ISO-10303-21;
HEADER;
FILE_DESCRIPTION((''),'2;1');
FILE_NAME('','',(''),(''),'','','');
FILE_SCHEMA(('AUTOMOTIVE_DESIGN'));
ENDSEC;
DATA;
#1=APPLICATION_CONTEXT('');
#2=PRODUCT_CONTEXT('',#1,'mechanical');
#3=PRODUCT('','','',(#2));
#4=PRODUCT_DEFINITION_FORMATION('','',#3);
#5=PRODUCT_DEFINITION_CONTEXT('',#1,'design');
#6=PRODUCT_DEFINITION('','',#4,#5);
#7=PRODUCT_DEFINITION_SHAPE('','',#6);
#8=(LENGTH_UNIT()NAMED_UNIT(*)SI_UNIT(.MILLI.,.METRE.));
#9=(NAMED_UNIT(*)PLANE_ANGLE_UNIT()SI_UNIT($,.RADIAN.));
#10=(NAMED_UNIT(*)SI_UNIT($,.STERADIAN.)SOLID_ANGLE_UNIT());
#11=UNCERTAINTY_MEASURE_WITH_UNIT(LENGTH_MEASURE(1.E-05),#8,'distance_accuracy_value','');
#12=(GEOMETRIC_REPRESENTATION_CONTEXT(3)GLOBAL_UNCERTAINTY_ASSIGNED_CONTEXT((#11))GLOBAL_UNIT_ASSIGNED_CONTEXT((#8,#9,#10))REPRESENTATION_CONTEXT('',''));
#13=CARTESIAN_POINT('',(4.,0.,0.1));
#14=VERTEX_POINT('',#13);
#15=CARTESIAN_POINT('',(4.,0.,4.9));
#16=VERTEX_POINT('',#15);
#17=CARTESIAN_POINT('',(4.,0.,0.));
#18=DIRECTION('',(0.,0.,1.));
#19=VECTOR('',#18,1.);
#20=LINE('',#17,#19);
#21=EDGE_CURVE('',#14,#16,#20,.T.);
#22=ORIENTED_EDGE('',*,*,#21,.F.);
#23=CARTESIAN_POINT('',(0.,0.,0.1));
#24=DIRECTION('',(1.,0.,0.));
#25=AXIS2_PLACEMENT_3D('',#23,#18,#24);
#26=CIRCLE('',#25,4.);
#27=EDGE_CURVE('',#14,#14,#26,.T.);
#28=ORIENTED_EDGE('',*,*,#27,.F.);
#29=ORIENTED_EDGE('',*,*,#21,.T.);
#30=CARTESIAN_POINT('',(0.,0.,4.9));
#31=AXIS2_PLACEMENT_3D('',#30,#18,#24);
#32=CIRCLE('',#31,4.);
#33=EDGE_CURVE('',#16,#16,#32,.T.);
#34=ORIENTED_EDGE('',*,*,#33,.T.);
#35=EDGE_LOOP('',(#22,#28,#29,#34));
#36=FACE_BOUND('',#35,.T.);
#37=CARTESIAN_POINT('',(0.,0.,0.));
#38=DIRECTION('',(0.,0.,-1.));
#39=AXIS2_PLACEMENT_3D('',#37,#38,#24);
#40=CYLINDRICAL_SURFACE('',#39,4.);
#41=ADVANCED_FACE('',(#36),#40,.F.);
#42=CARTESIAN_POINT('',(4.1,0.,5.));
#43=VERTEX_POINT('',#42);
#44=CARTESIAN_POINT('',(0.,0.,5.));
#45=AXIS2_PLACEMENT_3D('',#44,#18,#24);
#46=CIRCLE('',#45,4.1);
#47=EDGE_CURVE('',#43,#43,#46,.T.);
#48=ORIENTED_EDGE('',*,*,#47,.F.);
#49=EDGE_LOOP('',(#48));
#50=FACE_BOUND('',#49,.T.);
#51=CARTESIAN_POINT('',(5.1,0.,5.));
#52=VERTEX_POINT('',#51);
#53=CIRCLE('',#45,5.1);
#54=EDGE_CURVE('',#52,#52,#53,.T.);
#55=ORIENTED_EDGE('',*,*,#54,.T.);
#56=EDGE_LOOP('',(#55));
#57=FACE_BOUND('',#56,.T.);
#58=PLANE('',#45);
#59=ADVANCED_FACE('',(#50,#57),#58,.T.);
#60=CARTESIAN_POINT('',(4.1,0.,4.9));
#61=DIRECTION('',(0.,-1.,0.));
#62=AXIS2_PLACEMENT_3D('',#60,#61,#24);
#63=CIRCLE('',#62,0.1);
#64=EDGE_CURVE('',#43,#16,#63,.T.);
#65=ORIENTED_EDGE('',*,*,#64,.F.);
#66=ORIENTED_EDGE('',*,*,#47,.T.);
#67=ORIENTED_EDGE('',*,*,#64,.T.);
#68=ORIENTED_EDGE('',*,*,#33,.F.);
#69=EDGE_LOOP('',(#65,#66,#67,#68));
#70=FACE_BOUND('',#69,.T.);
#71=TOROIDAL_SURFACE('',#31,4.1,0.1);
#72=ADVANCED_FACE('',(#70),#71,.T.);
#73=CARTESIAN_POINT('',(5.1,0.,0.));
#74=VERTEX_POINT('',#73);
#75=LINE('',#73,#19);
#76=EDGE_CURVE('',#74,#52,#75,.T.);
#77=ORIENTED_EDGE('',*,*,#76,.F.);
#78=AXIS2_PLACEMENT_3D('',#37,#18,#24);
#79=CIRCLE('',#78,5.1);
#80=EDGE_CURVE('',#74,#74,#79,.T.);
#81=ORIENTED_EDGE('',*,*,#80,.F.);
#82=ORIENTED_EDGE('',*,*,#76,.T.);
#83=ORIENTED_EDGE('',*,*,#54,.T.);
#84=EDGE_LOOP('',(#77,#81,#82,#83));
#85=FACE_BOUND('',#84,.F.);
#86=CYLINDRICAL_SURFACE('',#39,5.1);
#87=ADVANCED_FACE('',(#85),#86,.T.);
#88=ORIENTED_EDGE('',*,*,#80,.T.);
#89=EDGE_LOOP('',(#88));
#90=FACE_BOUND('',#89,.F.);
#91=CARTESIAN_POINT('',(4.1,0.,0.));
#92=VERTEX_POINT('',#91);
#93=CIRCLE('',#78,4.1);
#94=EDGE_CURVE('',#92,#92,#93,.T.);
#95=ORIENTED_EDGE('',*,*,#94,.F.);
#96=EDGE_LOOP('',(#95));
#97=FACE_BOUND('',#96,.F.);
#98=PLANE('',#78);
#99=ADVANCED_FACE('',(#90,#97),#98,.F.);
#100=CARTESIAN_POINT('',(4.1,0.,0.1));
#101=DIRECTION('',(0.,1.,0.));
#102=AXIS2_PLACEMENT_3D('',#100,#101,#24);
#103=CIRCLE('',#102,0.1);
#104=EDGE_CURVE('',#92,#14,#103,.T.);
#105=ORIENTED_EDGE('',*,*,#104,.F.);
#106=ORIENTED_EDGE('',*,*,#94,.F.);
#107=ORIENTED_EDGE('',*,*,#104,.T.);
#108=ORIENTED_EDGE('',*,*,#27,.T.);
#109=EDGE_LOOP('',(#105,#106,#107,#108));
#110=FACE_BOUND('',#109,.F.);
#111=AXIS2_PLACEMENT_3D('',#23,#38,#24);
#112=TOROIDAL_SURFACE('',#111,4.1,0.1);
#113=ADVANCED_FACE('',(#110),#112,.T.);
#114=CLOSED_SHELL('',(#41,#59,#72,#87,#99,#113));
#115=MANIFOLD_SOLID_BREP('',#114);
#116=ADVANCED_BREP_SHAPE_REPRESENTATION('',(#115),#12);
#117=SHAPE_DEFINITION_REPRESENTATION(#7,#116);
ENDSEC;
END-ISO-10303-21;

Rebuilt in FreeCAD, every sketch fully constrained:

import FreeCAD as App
import Part
import Sketcher

V = App.Vector
Q = App.Units.Quantity


def edges_at(feature, points):
    """Names of the edges that pass closest to the given points."""
    edges = feature.Shape.Edges
    near = lambda p: min(range(len(edges)), key=lambda i: edges[i].distToShape(Part.Vertex(*p))[0])
    return sorted({f"Edge{near(p) + 1}" for p in points})

doc = App.newDocument("Part")
body = doc.addObject("PartDesign::Body", "Body")

sketch1 = doc.addObject("Sketcher::SketchObject", "Sketch")
body.addObject(sketch1)
sketch1.AttachmentSupport = (doc.XY_Plane, [""])
sketch1.MapMode = "FlatFace"
sketch1.addGeometry(Part.Circle(V(0, 0, 0), V(0, 0, 1), 4), False)
sketch1.addConstraint([
    Sketcher.Constraint("Coincident", 0, 3, -1, 1),
    Sketcher.Constraint("Diameter", 0, Q("8 mm")),
])
pad1 = doc.addObject("PartDesign::Pad", "Pad")
body.addObject(pad1)
pad1.Profile = sketch1
pad1.Length = 5
body2 = doc.addObject("PartDesign::Body", "Body001")

sketch2 = doc.addObject("Sketcher::SketchObject", "Sketch001")
body2.addObject(sketch2)
sketch2.AttachmentSupport = (doc.getObject("XY_Plane001"), [""])
sketch2.MapMode = "FlatFace"
sketch2.addGeometry(Part.Circle(V(0, 0, 0), V(0, 0, 1), 5), False)
sketch2.addConstraint([
    Sketcher.Constraint("Coincident", 0, 3, -1, 1),
    Sketcher.Constraint("Diameter", 0, Q("10.2 mm")),
])
pad2 = doc.addObject("PartDesign::Pad", "Pad001")
body2.addObject(pad2)
pad2.Profile = sketch2
pad2.Length = 5
doc.recompute()

boolean = doc.addObject("PartDesign::Boolean", "Boolean")
body2.addObject(boolean)
boolean.Type = "Cut"
boolean.addObjects([body])
doc.recompute()

fillet = doc.addObject("PartDesign::Fillet", "Fillet")
body2.addObject(fillet)
fillet.Base = (boolean, edges_at(boolean, [(-4, 0, 0), (-4, 0, 5)]))
fillet.Radius = 0.1

doc.recompute()
